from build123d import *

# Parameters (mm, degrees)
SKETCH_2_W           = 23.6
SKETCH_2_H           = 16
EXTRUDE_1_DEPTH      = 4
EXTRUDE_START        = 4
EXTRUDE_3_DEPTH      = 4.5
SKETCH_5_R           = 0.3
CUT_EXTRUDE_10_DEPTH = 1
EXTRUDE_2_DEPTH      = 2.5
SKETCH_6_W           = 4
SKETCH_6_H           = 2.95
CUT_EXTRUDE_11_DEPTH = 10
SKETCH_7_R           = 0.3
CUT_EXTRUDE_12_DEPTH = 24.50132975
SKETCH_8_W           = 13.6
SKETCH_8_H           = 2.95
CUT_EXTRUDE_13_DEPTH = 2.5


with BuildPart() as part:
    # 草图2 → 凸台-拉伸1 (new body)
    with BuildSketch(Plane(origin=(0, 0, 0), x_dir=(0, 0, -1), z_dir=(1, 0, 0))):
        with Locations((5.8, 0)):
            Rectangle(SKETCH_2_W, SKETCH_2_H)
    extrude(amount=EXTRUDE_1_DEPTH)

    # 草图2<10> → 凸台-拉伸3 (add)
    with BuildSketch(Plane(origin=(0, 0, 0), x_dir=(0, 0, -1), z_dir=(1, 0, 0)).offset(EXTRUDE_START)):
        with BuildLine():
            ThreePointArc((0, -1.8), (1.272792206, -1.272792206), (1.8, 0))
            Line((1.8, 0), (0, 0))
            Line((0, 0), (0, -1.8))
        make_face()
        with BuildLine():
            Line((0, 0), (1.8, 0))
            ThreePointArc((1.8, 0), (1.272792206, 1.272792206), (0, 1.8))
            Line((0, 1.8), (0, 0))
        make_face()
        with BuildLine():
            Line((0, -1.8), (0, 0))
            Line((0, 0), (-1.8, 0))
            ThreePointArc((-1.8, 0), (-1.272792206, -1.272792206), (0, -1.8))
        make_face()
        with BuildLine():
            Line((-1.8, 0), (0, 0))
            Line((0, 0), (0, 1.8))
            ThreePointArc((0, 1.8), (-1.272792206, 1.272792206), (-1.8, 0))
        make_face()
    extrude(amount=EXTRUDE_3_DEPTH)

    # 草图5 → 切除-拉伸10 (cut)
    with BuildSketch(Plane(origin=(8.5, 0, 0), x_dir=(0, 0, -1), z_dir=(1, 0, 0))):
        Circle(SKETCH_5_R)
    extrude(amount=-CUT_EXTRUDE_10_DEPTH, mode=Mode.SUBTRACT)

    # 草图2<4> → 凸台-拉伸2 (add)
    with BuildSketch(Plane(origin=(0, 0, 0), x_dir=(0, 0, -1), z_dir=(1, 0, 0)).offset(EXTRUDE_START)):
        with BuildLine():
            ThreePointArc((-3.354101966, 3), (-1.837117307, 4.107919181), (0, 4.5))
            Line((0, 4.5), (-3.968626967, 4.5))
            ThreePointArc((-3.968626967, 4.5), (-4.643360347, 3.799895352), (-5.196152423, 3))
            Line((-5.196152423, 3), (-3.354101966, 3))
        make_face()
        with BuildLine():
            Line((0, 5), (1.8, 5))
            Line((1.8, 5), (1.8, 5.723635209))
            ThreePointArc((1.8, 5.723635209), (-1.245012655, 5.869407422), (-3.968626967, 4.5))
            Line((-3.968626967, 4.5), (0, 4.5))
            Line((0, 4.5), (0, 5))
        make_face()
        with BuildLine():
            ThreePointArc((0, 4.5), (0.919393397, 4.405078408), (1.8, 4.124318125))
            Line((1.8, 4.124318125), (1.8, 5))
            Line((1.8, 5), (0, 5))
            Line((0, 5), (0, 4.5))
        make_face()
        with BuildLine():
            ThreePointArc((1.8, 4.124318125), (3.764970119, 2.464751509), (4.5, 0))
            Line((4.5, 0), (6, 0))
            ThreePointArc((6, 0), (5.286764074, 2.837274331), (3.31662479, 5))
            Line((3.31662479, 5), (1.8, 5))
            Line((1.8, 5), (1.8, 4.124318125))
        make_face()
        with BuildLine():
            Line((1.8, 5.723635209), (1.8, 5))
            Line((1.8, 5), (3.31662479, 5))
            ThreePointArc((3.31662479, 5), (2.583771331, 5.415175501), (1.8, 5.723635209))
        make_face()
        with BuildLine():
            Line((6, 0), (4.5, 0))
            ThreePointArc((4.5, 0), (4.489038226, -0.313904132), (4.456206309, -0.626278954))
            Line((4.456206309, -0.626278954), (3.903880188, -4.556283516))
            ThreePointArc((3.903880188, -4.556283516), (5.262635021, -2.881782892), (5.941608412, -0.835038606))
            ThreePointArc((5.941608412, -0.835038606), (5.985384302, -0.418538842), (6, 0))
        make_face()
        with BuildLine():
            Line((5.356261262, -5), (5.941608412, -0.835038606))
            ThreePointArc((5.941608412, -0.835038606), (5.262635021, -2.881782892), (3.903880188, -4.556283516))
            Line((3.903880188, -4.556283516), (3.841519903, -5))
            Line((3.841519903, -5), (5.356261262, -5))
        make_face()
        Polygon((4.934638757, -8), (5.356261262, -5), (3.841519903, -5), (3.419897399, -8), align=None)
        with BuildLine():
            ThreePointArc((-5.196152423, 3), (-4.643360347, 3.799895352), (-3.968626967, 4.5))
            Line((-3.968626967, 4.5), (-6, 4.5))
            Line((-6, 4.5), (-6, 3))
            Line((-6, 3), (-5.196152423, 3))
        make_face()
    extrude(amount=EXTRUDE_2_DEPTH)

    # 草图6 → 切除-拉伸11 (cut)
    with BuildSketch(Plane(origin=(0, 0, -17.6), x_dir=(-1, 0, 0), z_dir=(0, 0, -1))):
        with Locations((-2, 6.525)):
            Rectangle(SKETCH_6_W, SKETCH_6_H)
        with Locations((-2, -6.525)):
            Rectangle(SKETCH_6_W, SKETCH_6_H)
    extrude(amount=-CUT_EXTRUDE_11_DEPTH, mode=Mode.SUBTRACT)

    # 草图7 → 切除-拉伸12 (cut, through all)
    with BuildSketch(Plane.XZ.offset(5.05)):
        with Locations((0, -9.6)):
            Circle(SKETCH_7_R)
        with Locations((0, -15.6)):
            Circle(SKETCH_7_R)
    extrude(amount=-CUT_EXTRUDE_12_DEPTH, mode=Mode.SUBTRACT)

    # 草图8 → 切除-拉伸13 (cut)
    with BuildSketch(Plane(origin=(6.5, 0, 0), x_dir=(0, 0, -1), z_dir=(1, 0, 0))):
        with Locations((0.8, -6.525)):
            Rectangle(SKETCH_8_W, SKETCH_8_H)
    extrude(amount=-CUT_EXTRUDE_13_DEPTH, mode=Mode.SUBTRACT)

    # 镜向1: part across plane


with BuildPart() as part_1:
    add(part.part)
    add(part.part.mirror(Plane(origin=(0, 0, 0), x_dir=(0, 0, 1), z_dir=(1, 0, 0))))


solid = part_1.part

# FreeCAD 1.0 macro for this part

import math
import FreeCAD as App
import Part
import Sketcher

V = App.Vector
Q = App.Units.Quantity

doc = App.newDocument("Part")
body = doc.addObject("PartDesign::Body", "Body")

sketch1 = body.newObject("Sketcher::SketchObject", "Sketch")
sketch1.AttachmentSupport = (doc.getObject("YZ_Plane"), [""])
sketch1.MapMode = "FlatFace"
sketch1.addGeometry(Part.LineSegment(V(8, 6, 0), V(-8, 6, 0)), False)
sketch1.addGeometry(Part.LineSegment(V(-8, 6, 0), V(-8, -18, 0)), False)
sketch1.addGeometry(Part.LineSegment(V(-8, -18, 0), V(8, -18, 0)), False)
sketch1.addGeometry(Part.LineSegment(V(8, -18, 0), V(8, 6, 0)), False)
sketch1.addConstraint(Sketcher.Constraint("Coincident", 0, 2, 1, 1))
sketch1.addConstraint(Sketcher.Constraint("Coincident", 1, 2, 2, 1))
sketch1.addConstraint(Sketcher.Constraint("Coincident", 2, 2, 3, 1))
sketch1.addConstraint(Sketcher.Constraint("Coincident", 3, 2, 0, 1))
sketch1.addConstraint(Sketcher.Constraint("Horizontal", 0))
sketch1.addConstraint(Sketcher.Constraint("Vertical", 1))
sketch1.addConstraint(Sketcher.Constraint("Horizontal", 2))
sketch1.addConstraint(Sketcher.Constraint("Vertical", 3))
sketch1.addConstraint(Sketcher.Constraint("DistanceX", 0, 2, 0, 1, 16.0))
sketch1.addConstraint(Sketcher.Constraint("DistanceY", 1, 2, 1, 1, 23.6))
sketch1.addConstraint(Sketcher.Constraint("DistanceX", 0, 2, -1, 1, 8.0))
sketch1.addConstraint(Sketcher.Constraint("DistanceY", -1, 1, 0, 2, 6.0))
pad1 = body.newObject("PartDesign::Pad", "Pad")
pad1.Profile = sketch1
pad1.Length = 4

sketch2 = body.newObject("Sketcher::SketchObject", "Sketch001")
sketch2.AttachmentSupport = (doc.getObject("YZ_Plane"), [""])
sketch2.MapMode = "FlatFace"
sketch2.AttachmentOffset = App.Placement(V(0, 0, 4), App.Rotation())
sketch2.addGeometry(Part.ArcOfCircle(Part.Circle(V(0, 0, 0), V(0, 0, 1), 1.8), math.radians(-90), math.radians(0)), False)
sketch2.addGeometry(Part.ArcOfCircle(Part.Circle(V(0, 0, 0), V(0, 0, 1), 1.8), math.radians(0), math.radians(90)), False)
sketch2.addGeometry(Part.ArcOfCircle(Part.Circle(V(0, 0, 0), V(0, 0, 1), 1.8), math.radians(90), math.radians(180)), False)
sketch2.addGeometry(Part.ArcOfCircle(Part.Circle(V(0, 0, 0), V(0, 0, 1), 1.8), math.radians(180), math.radians(270)), False)
sketch2.addConstraint(Sketcher.Constraint("Tangent", 0, 2, 1, 1))
sketch2.addConstraint(Sketcher.Constraint("Tangent", 1, 2, 2, 1))
sketch2.addConstraint(Sketcher.Constraint("Tangent", 2, 2, 3, 1))
sketch2.addConstraint(Sketcher.Constraint("Tangent", 3, 2, 0, 1))
sketch2.addConstraint(Sketcher.Constraint("Coincident", 0, 3, -1, 1))
sketch2.addConstraint(Sketcher.Constraint("Equal", 0, 1))
sketch2.addConstraint(Sketcher.Constraint("PointOnObject", 0, 2, -1))
sketch2.addConstraint(Sketcher.Constraint("PointOnObject", 1, 2, -2))
sketch2.addConstraint(Sketcher.Constraint("PointOnObject", 2, 2, -1))
sketch2.addConstraint(Sketcher.Constraint("PointOnObject", 3, 2, -2))
sketch2.addConstraint(Sketcher.Constraint("Radius", 0, 1.8))
pad2 = body.newObject("PartDesign::Pad", "Pad001")
pad2.Profile = sketch2
pad2.Length = 4.5

sketch3 = body.newObject("Sketcher::SketchObject", "Sketch002")
sketch3.AttachmentSupport = (doc.getObject("YZ_Plane"), [""])
sketch3.MapMode = "FlatFace"
sketch3.AttachmentOffset = App.Placement(V(0, 0, 8.5), App.Rotation())
sketch3.addGeometry(Part.Circle(V(0, 0, 0), V(0, 0, 1), 0.3), False)
sketch3.addConstraint(Sketcher.Constraint("Coincident", 0, 3, -1, 1))
sketch3.addConstraint(Sketcher.Constraint("Diameter", 0, 0.6))
pocket1 = body.newObject("PartDesign::Pocket", "Pocket")
pocket1.Profile = sketch3
pocket1.Length = 1

sketch4 = body.newObject("Sketcher::SketchObject", "Sketch003")
sketch4.AttachmentSupport = (doc.getObject("YZ_Plane"), [""])
sketch4.MapMode = "FlatFace"
sketch4.AttachmentOffset = App.Placement(V(0, 0, 4), App.Rotation())
sketch4.addGeometry(Part.ArcOfCircle(Part.Circle(V(0, 0, 0), V(0, 0, 1), 4.5), math.radians(0), math.radians(48)), False)
sketch4.addGeometry(Part.ArcOfCircle(Part.Circle(V(0, 0, 0), V(0, 0, 1), 4.5), math.radians(-24), math.radians(0)), False)
sketch4.addGeometry(Part.ArcOfCircle(Part.Circle(V(0, 0, 0), V(0, 0, 1), 4.5), math.radians(-90), math.radians(-24)), False)
sketch4.addGeometry(Part.ArcOfCircle(Part.Circle(V(0, 0, 0), V(0, 0, 1), 4.5), math.radians(-98), math.radians(-90)), False)
sketch4.addGeometry(Part.LineSegment(V(-0.63, -4.46, 0), V(-4.56, -3.9, 0)), False)
sketch4.addGeometry(Part.LineSegment(V(-4.56, -3.9, 0), V(-5, -3.84, 0)), False)
sketch4.addGeometry(Part.LineSegment(V(-5, -3.84, 0), V(-8, -3.42, 0)), False)
sketch4.addGeometry(Part.LineSegment(V(-8, -3.42, 0), V(-8, -4.93, 0)), False)
sketch4.addGeometry(Part.LineSegment(V(-8, -4.93, 0), V(-5, -5.36, 0)), False)
sketch4.addGeometry(Part.LineSegment(V(-5, -5.36, 0), V(-0.84, -5.94, 0)), False)
sketch4.addGeometry(Part.ArcOfCircle(Part.Circle(V(0, 0, 0), V(0, 0, 1), 6), math.radians(-98), math.radians(-90)), False)
sketch4.addGeometry(Part.ArcOfCircle(Part.Circle(V(0, 0, 0), V(0, 0, 1), 6), math.radians(-90), math.radians(-34)), False)
sketch4.addGeometry(Part.ArcOfCircle(Part.Circle(V(0, 0, 0), V(0, 0, 1), 6), math.radians(-33.56), math.radians(-17.46)), False)
sketch4.addGeometry(Part.ArcOfCircle(Part.Circle(V(0, 0, 0), V(0, 0, 1), 6), math.radians(-17), math.radians(41)), False)
sketch4.addGeometry(Part.LineSegment(V(4.5, 3.97, 0), V(4.5, 6, 0)), False)
sketch4.addGeometry(Part.LineSegment(V(4.5, 6, 0), V(3, 6, 0)), False)
sketch4.addGeometry(Part.LineSegment(V(3, 6, 0), V(3, 3.35, 0)), False)
sketch4.addConstraint(Sketcher.Constraint("Tangent", 0, 1, 1, 2))
sketch4.addConstraint(Sketcher.Constraint("Tangent", 1, 1, 2, 2))
sketch4.addConstraint(Sketcher.Constraint("Tangent", 2, 1, 3, 2))
sketch4.addConstraint(Sketcher.Constraint("Tangent", 3, 1, 4, 1))
sketch4.addConstraint(Sketcher.Constraint("Coincident", 4, 2, 5, 1))
sketch4.addConstraint(Sketcher.Constraint("Coincident", 5, 2, 6, 1))
sketch4.addConstraint(Sketcher.Constraint("Coincident", 6, 2, 7, 1))
sketch4.addConstraint(Sketcher.Constraint("Coincident", 7, 2, 8, 1))
sketch4.addConstraint(Sketcher.Constraint("Coincident", 8, 2, 9, 1))
sketch4.addConstraint(Sketcher.Constraint("Tangent", 9, 2, 10, 1))
sketch4.addConstraint(Sketcher.Constraint("Tangent", 10, 2, 11, 1))
sketch4.addConstraint(Sketcher.Constraint("Tangent", 11, 2, 12, 1))
sketch4.addConstraint(Sketcher.Constraint("Tangent", 12, 2, 13, 1))
sketch4.addConstraint(Sketcher.Constraint("Coincident", 13, 2, 14, 1))
sketch4.addConstraint(Sketcher.Constraint("Coincident", 14, 2, 15, 1))
sketch4.addConstraint(Sketcher.Constraint("Coincident", 15, 2, 16, 1))
sketch4.addConstraint(Sketcher.Constraint("Coincident", 16, 2, 0, 2))
sketch4.addConstraint(Sketcher.Constraint("Vertical", 7))
sketch4.addConstraint(Sketcher.Constraint("Vertical", 14))
sketch4.addConstraint(Sketcher.Constraint("Horizontal", 15))
sketch4.addConstraint(Sketcher.Constraint("Vertical", 16))
sketch4.addConstraint(Sketcher.Constraint("Coincident", 0, 3, -1, 1))
sketch4.addConstraint(Sketcher.Constraint("Coincident", 2, 3, -1, 1))
sketch4.addConstraint(Sketcher.Constraint("Coincident", 10, 3, -1, 1))
sketch4.addConstraint(Sketcher.Constraint("Coincident", 12, 3, -1, 1))
sketch4.addConstraint(Sketcher.Constraint("Equal", 2, 3))
sketch4.addConstraint(Sketcher.Constraint("Equal", 12, 13))
sketch4.addConstraint(Sketcher.Constraint("PointOnObject", 0, 1, -1))
sketch4.addConstraint(Sketcher.Constraint("PointOnObject", 2, 1, -2))
sketch4.addConstraint(Sketcher.Constraint("PointOnObject", 10, 2, -2))
sketch4.addConstraint(Sketcher.Constraint("Parallel", 4, 5))
sketch4.addConstraint(Sketcher.Constraint("Parallel", 5, 6))
sketch4.addConstraint(Sketcher.Constraint("Parallel", 6, 8))
sketch4.addConstraint(Sketcher.Constraint("Parallel", 8, 9))
sketch4.addConstraint(Sketcher.Constraint("Horizontal", 1, 1, 12, 2))
sketch4.addConstraint(Sketcher.Constraint("Vertical", 5, 2, 8, 2))
sketch4.addConstraint(Sketcher.Constraint("Vertical", 0, 1, 13, 2))
sketch4.addConstraint(Sketcher.Constraint("Radius", 10, 6.0))
sketch4.addConstraint(Sketcher.Constraint("Radius", 0, 4.5))
sketch4.addConstraint(Sketcher.Constraint("Angle", 4, Q("172 deg")))
sketch4.addConstraint(Sketcher.Constraint("DistanceX", 15, 2, 15, 1, 1.5))
sketch4.addConstraint(Sketcher.Constraint("DistanceX", 5, 2, -1, 1, 5.0))
sketch4.addConstraint(Sketcher.Constraint("DistanceX", 6, 2, -1, 1, 8.0))
sketch4.addConstraint(Sketcher.Constraint("DistanceX", -1, 1, 11, 2, 5.0))
sketch4.addConstraint(Sketcher.Constraint("DistanceY", -1, 1, 14, 2, 6.0))
sketch4.addConstraint(Sketcher.Constraint("DistanceY", 1, 1, -1, 1, 1.8))
sketch4.addConstraint(Sketcher.Constraint("DistanceY", 4, 2, -1, 1, 3.90388))
pad3 = body.newObject("PartDesign::Pad", "Pad002")
pad3.Profile = sketch4
pad3.Length = 2.5

sketch5 = body.newObject("Sketcher::SketchObject", "Sketch004")
sketch5.AttachmentSupport = (doc.getObject("XY_Plane"), [""])
sketch5.MapMode = "FlatFace"
sketch5.AttachmentOffset = App.Placement(V(0, 0, -17.6), App.Rotation())
sketch5.addGeometry(Part.LineSegment(V(4, 8, 0), V(4, 5, 0)), False)
sketch5.addGeometry(Part.LineSegment(V(4, 5, 0), V(0, 5, 0)), False)
sketch5.addGeometry(Part.LineSegment(V(0, 5, 0), V(0, 8, 0)), False)
sketch5.addGeometry(Part.LineSegment(V(0, 8, 0), V(4, 8, 0)), False)
sketch5.addGeometry(Part.LineSegment(V(4, -5, 0), V(4, -8, 0)), False)
sketch5.addGeometry(Part.LineSegment(V(4, -8, 0), V(0, -8, 0)), False)
sketch5.addGeometry(Part.LineSegment(V(0, -8, 0), V(0, -5, 0)), False)
sketch5.addGeometry(Part.LineSegment(V(0, -5, 0), V(4, -5, 0)), False)
sketch5.addConstraint(Sketcher.Constraint("Coincident", 0, 2, 1, 1))
sketch5.addConstraint(Sketcher.Constraint("Coincident", 1, 2, 2, 1))
sketch5.addConstraint(Sketcher.Constraint("Coincident", 2, 2, 3, 1))
sketch5.addConstraint(Sketcher.Constraint("Coincident", 3, 2, 0, 1))
sketch5.addConstraint(Sketcher.Constraint("Coincident", 4, 2, 5, 1))
sketch5.addConstraint(Sketcher.Constraint("Coincident", 5, 2, 6, 1))
sketch5.addConstraint(Sketcher.Constraint("Coincident", 6, 2, 7, 1))
sketch5.addConstraint(Sketcher.Constraint("Coincident", 7, 2, 4, 1))
sketch5.addConstraint(Sketcher.Constraint("Vertical", 0))
sketch5.addConstraint(Sketcher.Constraint("Horizontal", 1))
sketch5.addConstraint(Sketcher.Constraint("Vertical", 2))
sketch5.addConstraint(Sketcher.Constraint("Horizontal", 3))
sketch5.addConstraint(Sketcher.Constraint("Vertical", 4))
sketch5.addConstraint(Sketcher.Constraint("Horizontal", 5))
sketch5.addConstraint(Sketcher.Constraint("Vertical", 6))
sketch5.addConstraint(Sketcher.Constraint("Horizontal", 7))
sketch5.addConstraint(Sketcher.Constraint("Symmetric", 2, 2, 5, 2, -1, 1))
sketch5.addConstraint(Sketcher.Constraint("Symmetric", 1, 2, 6, 2, -1))
sketch5.addConstraint(Sketcher.Constraint("Vertical", 3, 2, 4, 2))
sketch5.addConstraint(Sketcher.Constraint("DistanceX", 1, 2, 1, 1, 4.0))
sketch5.addConstraint(Sketcher.Constraint("DistanceY", -1, 1, 2, 2, 8.0))
sketch5.addConstraint(Sketcher.Constraint("DistanceY", 0, 2, 0, 1, 2.95))
pocket2 = body.newObject("PartDesign::Pocket", "Pocket001")
pocket2.Profile = sketch5
pocket2.Length = 10
pocket2.Reversed = True

sketch6 = body.newObject("Sketcher::SketchObject", "Sketch005")
sketch6.AttachmentSupport = (doc.getObject("XZ_Plane"), [""])
sketch6.MapMode = "FlatFace"
sketch6.AttachmentOffset = App.Placement(V(0, 0, 5.05), App.Rotation())
sketch6.addGeometry(Part.Circle(V(0, -9.6, 0), V(0, 0, 1), 0.3), False)
sketch6.addGeometry(Part.Circle(V(0, -15.6, 0), V(0, 0, 1), 0.3), False)
sketch6.addConstraint(Sketcher.Constraint("Equal", 0, 1))
sketch6.addConstraint(Sketcher.Constraint("PointOnObject", 0, 3, -2))
sketch6.addConstraint(Sketcher.Constraint("PointOnObject", 1, 3, -2))
sketch6.addConstraint(Sketcher.Constraint("Diameter", 0, 0.6))
sketch6.addConstraint(Sketcher.Constraint("DistanceY", 1, 3, 0, 3, 6.0))
sketch6.addConstraint(Sketcher.Constraint("DistanceY", 0, 3, -1, 1, 9.6))
pocket3 = body.newObject("PartDesign::Pocket", "Pocket002")
pocket3.Profile = sketch6
pocket3.Type = "ThroughAll"

sketch7 = body.newObject("Sketcher::SketchObject", "Sketch006")
sketch7.AttachmentSupport = (doc.getObject("YZ_Plane"), [""])
sketch7.MapMode = "FlatFace"
sketch7.AttachmentOffset = App.Placement(V(0, 0, 6.5), App.Rotation())
sketch7.addGeometry(Part.LineSegment(V(-5, 6, 0), V(-8, 6, 0)), False)
sketch7.addGeometry(Part.LineSegment(V(-8, 6, 0), V(-8, -7.6, 0)), False)
sketch7.addGeometry(Part.LineSegment(V(-8, -7.6, 0), V(-5, -7.6, 0)), False)
sketch7.addGeometry(Part.LineSegment(V(-5, -7.6, 0), V(-5, 6, 0)), False)
sketch7.addConstraint(Sketcher.Constraint("Coincident", 0, 2, 1, 1))
sketch7.addConstraint(Sketcher.Constraint("Coincident", 1, 2, 2, 1))
sketch7.addConstraint(Sketcher.Constraint("Coincident", 2, 2, 3, 1))
sketch7.addConstraint(Sketcher.Constraint("Coincident", 3, 2, 0, 1))
sketch7.addConstraint(Sketcher.Constraint("Horizontal", 0))
sketch7.addConstraint(Sketcher.Constraint("Vertical", 1))
sketch7.addConstraint(Sketcher.Constraint("Horizontal", 2))
sketch7.addConstraint(Sketcher.Constraint("Vertical", 3))
sketch7.addConstraint(Sketcher.Constraint("DistanceY", 1, 2, 1, 1, 13.6))
sketch7.addConstraint(Sketcher.Constraint("DistanceX", 0, 2, -1, 1, 8.0))
sketch7.addConstraint(Sketcher.Constraint("DistanceY", -1, 1, 0, 2, 6.0))
sketch7.addConstraint(Sketcher.Constraint("DistanceX", 0, 2, 0, 1, 2.95))
pocket4 = body.newObject("PartDesign::Pocket", "Pocket003")
pocket4.Profile = sketch7
pocket4.Length = 2.5
body2 = doc.addObject("PartDesign::Body", "Body001")
doc.recompute()

body2.BaseFeature = body
doc.recompute()

mirroring = doc.addObject("Part::Mirroring", "Mirroring")
mirroring.Source = body
mirroring.Base = V(0, 0, 0)
mirroring.Normal = V(1, 0, 0)
body3 = doc.addObject("PartDesign::Body", "Body002")
body3.BaseFeature = mirroring
boolean = body2.newObject("PartDesign::Boolean", "Boolean")
boolean.Type = "Fuse"
boolean.addObjects([body3])
doc.recompute()
mirroring.Visibility = False

doc.recompute()
